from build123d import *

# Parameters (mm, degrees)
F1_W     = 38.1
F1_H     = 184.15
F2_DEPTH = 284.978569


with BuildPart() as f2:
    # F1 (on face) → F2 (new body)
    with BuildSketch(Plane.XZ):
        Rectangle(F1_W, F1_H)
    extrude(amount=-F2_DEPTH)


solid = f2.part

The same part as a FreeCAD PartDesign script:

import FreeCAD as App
import Part
import Sketcher

V = App.Vector
Q = App.Units.Quantity

doc = App.newDocument("Part")
body = doc.addObject("PartDesign::Body", "Body")

sketch1 = body.newObject("Sketcher::SketchObject", "Sketch")
sketch1.AttachmentSupport = (doc.getObject("XZ_Plane"), [""])
sketch1.MapMode = "FlatFace"
sketch1.addGeometry([
    Part.LineSegment(V(-19, 92, 0), V(-19, -92, 0)),
    Part.LineSegment(V(-19, -92, 0), V(19, -92, 0)),
    Part.LineSegment(V(19, -92, 0), V(19, 92, 0)),
    Part.LineSegment(V(19, 92, 0), V(-19, 92, 0)),
], False)
sketch1.addConstraint([
    Sketcher.Constraint("Coincident", 0, 2, 1, 1),
    Sketcher.Constraint("Coincident", 1, 2, 2, 1),
    Sketcher.Constraint("Coincident", 2, 2, 3, 1),
    Sketcher.Constraint("Coincident", 3, 2, 0, 1),
    Sketcher.Constraint("Vertical", 0),
    Sketcher.Constraint("Horizontal", 1),
    Sketcher.Constraint("Vertical", 2),
    Sketcher.Constraint("Horizontal", 3),
    Sketcher.Constraint("Symmetric", 0, 2, 2, 2, -1, 1),
    Sketcher.Constraint("DistanceX", 1, 1, 1, 2, Q("1.5 in")),
    Sketcher.Constraint("DistanceY", 0, 2, 0, 1, Q("7.25 in")),
])
pad1 = body.newObject("PartDesign::Pad", "Pad")
pad1.Profile = sketch1
pad1.Length = 284.978569
pad1.Reversed = True

doc.recompute()
